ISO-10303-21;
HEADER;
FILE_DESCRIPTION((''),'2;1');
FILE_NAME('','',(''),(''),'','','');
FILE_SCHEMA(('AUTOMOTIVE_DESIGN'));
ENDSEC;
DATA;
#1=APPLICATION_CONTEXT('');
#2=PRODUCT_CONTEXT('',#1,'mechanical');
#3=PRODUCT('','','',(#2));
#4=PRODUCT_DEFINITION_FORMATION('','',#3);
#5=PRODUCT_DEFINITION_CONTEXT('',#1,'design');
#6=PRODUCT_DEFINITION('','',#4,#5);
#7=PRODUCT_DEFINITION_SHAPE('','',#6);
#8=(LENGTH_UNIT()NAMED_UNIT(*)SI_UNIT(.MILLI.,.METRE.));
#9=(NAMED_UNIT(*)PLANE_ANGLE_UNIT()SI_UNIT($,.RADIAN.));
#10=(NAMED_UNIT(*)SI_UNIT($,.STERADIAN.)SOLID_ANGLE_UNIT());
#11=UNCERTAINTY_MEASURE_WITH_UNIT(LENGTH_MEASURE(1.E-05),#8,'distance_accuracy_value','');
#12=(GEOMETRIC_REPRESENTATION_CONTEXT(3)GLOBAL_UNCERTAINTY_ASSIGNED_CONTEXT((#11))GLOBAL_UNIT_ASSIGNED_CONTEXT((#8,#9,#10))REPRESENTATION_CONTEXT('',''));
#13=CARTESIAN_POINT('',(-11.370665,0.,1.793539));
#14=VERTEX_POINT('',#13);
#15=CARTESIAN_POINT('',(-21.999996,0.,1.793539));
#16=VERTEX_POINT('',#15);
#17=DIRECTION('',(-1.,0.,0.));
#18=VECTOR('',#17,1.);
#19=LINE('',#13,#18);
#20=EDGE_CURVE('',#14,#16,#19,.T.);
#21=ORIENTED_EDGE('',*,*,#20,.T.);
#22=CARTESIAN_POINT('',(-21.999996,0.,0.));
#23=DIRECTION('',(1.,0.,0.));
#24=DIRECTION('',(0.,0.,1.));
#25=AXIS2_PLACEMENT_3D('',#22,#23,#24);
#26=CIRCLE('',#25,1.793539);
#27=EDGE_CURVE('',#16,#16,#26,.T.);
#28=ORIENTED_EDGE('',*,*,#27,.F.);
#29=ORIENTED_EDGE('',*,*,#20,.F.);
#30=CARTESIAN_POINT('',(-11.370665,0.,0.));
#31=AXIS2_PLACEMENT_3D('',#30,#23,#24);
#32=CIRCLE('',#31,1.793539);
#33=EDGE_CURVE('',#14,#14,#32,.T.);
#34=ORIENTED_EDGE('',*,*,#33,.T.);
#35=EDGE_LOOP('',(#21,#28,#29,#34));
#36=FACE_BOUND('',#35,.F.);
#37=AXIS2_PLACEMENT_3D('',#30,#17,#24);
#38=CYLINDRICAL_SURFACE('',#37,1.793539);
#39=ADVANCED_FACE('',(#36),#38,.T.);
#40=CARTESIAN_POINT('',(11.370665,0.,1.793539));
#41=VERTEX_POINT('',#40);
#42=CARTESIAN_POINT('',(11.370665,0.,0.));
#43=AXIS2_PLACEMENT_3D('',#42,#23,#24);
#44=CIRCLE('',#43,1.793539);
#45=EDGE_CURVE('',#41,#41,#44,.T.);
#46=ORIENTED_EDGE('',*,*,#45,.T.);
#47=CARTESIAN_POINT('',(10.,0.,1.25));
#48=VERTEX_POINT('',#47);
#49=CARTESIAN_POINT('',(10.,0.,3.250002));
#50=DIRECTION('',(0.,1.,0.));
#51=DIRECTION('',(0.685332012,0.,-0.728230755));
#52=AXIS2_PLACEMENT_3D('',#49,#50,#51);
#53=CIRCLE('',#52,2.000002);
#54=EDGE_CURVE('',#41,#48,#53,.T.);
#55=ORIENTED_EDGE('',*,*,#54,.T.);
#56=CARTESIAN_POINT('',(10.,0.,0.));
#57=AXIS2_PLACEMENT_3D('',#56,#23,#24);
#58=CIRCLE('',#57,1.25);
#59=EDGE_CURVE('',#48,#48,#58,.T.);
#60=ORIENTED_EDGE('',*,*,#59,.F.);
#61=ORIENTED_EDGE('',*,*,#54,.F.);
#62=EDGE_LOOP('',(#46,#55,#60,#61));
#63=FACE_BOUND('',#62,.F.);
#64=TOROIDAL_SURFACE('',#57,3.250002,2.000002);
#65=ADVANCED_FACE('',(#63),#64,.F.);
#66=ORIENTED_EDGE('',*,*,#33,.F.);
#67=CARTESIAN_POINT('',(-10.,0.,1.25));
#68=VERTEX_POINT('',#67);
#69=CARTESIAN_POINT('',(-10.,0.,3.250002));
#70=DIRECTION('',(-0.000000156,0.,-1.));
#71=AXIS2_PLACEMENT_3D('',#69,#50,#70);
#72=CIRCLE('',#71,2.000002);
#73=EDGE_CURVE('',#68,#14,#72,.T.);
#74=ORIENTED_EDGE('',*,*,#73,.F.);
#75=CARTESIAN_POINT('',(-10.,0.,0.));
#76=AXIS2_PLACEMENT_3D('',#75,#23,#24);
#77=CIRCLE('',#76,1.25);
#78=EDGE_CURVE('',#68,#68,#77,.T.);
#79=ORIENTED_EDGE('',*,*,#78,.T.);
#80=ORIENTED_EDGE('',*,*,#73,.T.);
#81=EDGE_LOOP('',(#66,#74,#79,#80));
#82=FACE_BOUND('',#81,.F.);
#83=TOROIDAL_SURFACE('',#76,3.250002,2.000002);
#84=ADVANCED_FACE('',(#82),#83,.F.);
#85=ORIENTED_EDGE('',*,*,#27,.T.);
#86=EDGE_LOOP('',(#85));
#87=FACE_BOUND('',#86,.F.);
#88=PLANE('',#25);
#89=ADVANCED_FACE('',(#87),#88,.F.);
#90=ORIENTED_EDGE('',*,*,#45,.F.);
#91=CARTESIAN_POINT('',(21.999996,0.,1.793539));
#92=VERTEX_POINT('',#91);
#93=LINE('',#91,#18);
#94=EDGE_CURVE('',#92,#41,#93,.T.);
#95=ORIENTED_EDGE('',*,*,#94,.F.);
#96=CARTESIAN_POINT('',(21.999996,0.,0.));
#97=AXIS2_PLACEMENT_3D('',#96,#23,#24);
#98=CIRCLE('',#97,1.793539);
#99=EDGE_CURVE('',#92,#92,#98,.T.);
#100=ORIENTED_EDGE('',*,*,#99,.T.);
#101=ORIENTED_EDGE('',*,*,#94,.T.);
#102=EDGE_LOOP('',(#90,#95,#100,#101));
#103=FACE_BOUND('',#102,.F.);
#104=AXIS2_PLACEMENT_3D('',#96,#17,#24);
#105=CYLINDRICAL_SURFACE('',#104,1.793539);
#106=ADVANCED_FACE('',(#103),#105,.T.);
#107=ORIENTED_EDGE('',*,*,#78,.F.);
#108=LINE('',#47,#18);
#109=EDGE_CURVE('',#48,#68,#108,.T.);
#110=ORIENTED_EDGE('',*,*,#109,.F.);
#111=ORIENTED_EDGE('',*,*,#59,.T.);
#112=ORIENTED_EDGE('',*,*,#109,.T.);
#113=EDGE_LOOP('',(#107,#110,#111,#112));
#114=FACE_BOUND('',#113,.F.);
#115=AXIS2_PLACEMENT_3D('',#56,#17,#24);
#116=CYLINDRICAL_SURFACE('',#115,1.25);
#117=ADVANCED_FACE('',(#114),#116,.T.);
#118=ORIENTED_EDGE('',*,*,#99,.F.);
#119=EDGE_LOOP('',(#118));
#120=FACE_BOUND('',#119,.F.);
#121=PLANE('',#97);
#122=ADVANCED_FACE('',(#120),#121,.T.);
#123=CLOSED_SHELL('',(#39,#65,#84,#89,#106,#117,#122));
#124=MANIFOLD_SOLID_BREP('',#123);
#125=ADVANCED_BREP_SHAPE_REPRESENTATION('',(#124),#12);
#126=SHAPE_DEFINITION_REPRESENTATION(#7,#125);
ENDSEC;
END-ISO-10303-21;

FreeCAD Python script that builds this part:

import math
import FreeCAD as App
import Part
import Sketcher

doc = App.newDocument("Part")
params = doc.addObject("Spreadsheet::Sheet", "Params")
for row, (alias, value) in enumerate([
    ("sketch1_radius", "2.000002 mm"),
    ("sketch1_width", "20 mm"),
    ("revolution_angle", "360 deg"),
], start=1):
    params.set(f"A{row}", alias)
    params.set(f"B{row}", "=" + value)
    params.setAlias(f"B{row}", alias)

body = doc.addObject("PartDesign::Body", "Body")

sketch1 = body.newObject("Sketcher::SketchObject", "Sketch")
sketch1.AttachmentSupport = (doc.getObject("XZ_Plane"), [""])
sketch1.MapMode = "FlatFace"
sketch1.addGeometry([
    Part.LineSegment(App.Vector(10, 1.2, 0), App.Vector(-10, 1.2, 0)),
    Part.ArcOfCircle(Part.Circle(App.Vector(-10, 3.3, 0), App.Vector(0, 0, 1), 2), math.radians(-133), math.radians(-90)),
    Part.LineSegment(App.Vector(-11.4, 1.8, 0), App.Vector(-22, 1.8, 0)),
    Part.LineSegment(App.Vector(-22, 1.8, 0), App.Vector(-22, 0, 0)),
    Part.LineSegment(App.Vector(-22, 0, 0), App.Vector(22, 0, 0)),
    Part.LineSegment(App.Vector(22, 0, 0), App.Vector(22, 1.8, 0)),
    Part.LineSegment(App.Vector(22, 1.8, 0), App.Vector(11.4, 1.8, 0)),
    Part.ArcOfCircle(Part.Circle(App.Vector(10, 3.3, 0), App.Vector(0, 0, 1), 2), math.radians(-90), math.radians(-47)),
], False)
sketch1.addConstraint([
    Sketcher.Constraint("Tangent", 0, 2, 1, 2),
    Sketcher.Constraint("Coincident", 1, 1, 2, 1),
    Sketcher.Constraint("Coincident", 2, 2, 3, 1),
    Sketcher.Constraint("Coincident", 3, 2, 4, 1),
    Sketcher.Constraint("Coincident", 4, 2, 5, 1),
    Sketcher.Constraint("Coincident", 5, 2, 6, 1),
    Sketcher.Constraint("Coincident", 6, 2, 7, 2),
    Sketcher.Constraint("Tangent", 7, 1, 0, 1),
    Sketcher.Constraint("Horizontal", 0),
    Sketcher.Constraint("Horizontal", 2),
    Sketcher.Constraint("Vertical", 3),
    Sketcher.Constraint("Horizontal", 4),
    Sketcher.Constraint("Vertical", 5),
    Sketcher.Constraint("Horizontal", 6),
    Sketcher.Constraint("Equal", 1, 7),
    Sketcher.Constraint("Symmetric", 3, 2, 4, 2, -1, 1),
    Sketcher.Constraint("Symmetric", 1, 1, 6, 2, -2),
    Sketcher.Constraint("Radius", 1, 2.000002),
    Sketcher.Constraint("DistanceX", 0, 2, 0, 1, 20.0),
    Sketcher.Constraint("DistanceY", -1, 1, 1, 3, 3.250002),
    Sketcher.Constraint("DistanceX", 2, 2, 2, 1, 10.629331),
    Sketcher.Constraint("DistanceY", 3, 2, 3, 1, 1.793539),
])
sketch1.setExpression("Constraints[17]", "Params.sketch1_radius")
sketch1.setExpression("Constraints[18]", "Params.sketch1_width")
revolution = body.newObject("PartDesign::Revolution", "Revolution")
revolution.Profile = sketch1
revolution.ReferenceAxis = (sketch1, ["H_Axis"])
revolution.setExpression("Angle", "Params.revolution_angle")

doc.recompute()
